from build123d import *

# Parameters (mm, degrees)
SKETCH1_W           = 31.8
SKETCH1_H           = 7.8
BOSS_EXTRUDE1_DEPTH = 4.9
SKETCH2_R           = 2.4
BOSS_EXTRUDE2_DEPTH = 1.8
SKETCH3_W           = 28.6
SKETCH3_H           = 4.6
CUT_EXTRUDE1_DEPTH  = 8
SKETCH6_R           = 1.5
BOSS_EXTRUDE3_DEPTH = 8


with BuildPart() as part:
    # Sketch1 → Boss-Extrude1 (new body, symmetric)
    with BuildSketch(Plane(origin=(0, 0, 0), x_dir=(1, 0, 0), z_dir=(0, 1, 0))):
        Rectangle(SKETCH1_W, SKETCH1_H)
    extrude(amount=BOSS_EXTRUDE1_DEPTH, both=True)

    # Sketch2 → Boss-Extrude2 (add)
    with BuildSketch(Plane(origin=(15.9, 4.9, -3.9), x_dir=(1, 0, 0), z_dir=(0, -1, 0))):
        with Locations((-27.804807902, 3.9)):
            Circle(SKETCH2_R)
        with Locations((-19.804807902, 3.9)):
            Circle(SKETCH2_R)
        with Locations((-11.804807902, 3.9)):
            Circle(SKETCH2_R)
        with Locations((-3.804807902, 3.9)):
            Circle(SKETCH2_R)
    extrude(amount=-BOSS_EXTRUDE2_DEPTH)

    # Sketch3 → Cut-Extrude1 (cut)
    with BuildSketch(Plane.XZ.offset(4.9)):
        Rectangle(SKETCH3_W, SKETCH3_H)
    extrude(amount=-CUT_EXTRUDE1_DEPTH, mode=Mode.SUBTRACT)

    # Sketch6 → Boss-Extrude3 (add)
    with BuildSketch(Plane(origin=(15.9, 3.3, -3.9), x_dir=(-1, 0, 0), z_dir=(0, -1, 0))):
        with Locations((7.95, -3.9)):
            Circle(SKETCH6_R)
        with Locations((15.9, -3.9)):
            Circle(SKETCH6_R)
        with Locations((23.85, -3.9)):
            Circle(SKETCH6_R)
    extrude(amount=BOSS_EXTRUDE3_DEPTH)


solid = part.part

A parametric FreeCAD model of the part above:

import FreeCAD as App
import Part
import Sketcher

doc = App.newDocument("Part")
body = doc.addObject("PartDesign::Body", "Body")

sketch1 = body.newObject("Sketcher::SketchObject", "Sketch")
sketch1.AttachmentSupport = (doc.getObject("XZ_Plane"), [""])
sketch1.MapMode = "FlatFace"
sketch1.addGeometry([
    Part.LineSegment(App.Vector(-16, -4, 0), App.Vector(-16, 4, 0)),
    Part.LineSegment(App.Vector(-16, 4, 0), App.Vector(16, 4, 0)),
    Part.LineSegment(App.Vector(16, 4, 0), App.Vector(16, -4, 0)),
    Part.LineSegment(App.Vector(16, -4, 0), App.Vector(-16, -4, 0)),
], False)
sketch1.addConstraint([
    Sketcher.Constraint("Coincident", 0, 2, 1, 1),
    Sketcher.Constraint("Coincident", 1, 2, 2, 1),
    Sketcher.Constraint("Coincident", 2, 2, 3, 1),
    Sketcher.Constraint("Coincident", 3, 2, 0, 1),
    Sketcher.Constraint("Vertical", 0),
    Sketcher.Constraint("Horizontal", 1),
    Sketcher.Constraint("Vertical", 2),
    Sketcher.Constraint("Horizontal", 3),
    Sketcher.Constraint("Symmetric", 0, 2, 2, 2, -1, 1),
    Sketcher.Constraint("DistanceX", 1, 1, 1, 2, 31.8),
    Sketcher.Constraint("DistanceY", 0, 1, 0, 2, 7.8),
])
pad1 = body.newObject("PartDesign::Pad", "Pad")
pad1.Profile = sketch1
pad1.Length = 9.8
pad1.Midplane = True

sketch2 = body.newObject("Sketcher::SketchObject", "Sketch001")
sketch2.AttachmentSupport = (doc.getObject("XZ_Plane"), [""])
sketch2.MapMode = "FlatFace"
sketch2.AttachmentOffset = App.Placement(App.Vector(0, 0, -4.9), App.Rotation())
sketch2.addGeometry([
    Part.Circle(App.Vector(-11.9, 0, 0), App.Vector(0, 0, 1), 2.4),
    Part.Circle(App.Vector(-3.9, 0, 0), App.Vector(0, 0, 1), 2.4),
    Part.Circle(App.Vector(4.1, 0, 0), App.Vector(0, 0, 1), 2.4),
    Part.Circle(App.Vector(12.1, 0, 0), App.Vector(0, 0, 1), 2.4),
], False)
sketch2.addConstraint([
    Sketcher.Constraint("Equal", 0, 1),
    Sketcher.Constraint("Equal", 1, 2),
    Sketcher.Constraint("Equal", 2, 3),
    Sketcher.Constraint("PointOnObject", 0, 3, -1),
    Sketcher.Constraint("PointOnObject", 1, 3, -1),
    Sketcher.Constraint("PointOnObject", 2, 3, -1),
    Sketcher.Constraint("PointOnObject", 3, 3, -1),
    Sketcher.Constraint("Diameter", 0, 4.8),
    Sketcher.Constraint("DistanceX", 0, 3, 1, 3, 8.0),
    Sketcher.Constraint("DistanceX", 1, 3, 2, 3, 8.0),
    Sketcher.Constraint("DistanceX", 2, 3, 3, 3, 8.0),
    Sketcher.Constraint("DistanceX", 0, 3, -1, 1, 11.904808),
])
pad2 = body.newObject("PartDesign::Pad", "Pad001")
pad2.Profile = sketch2
pad2.Length = 1.8
pad2.Reversed = True

sketch3 = body.newObject("Sketcher::SketchObject", "Sketch002")
sketch3.AttachmentSupport = (doc.getObject("XZ_Plane"), [""])
sketch3.MapMode = "FlatFace"
sketch3.AttachmentOffset = App.Placement(App.Vector(0, 0, 4.9), App.Rotation())
sketch3.addGeometry([
    Part.LineSegment(App.Vector(-14.3, 2.3, 0), App.Vector(-14.3, -2.3, 0)),
    Part.LineSegment(App.Vector(-14.3, -2.3, 0), App.Vector(14.3, -2.3, 0)),
    Part.LineSegment(App.Vector(14.3, -2.3, 0), App.Vector(14.3, 2.3, 0)),
    Part.LineSegment(App.Vector(14.3, 2.3, 0), App.Vector(-14.3, 2.3, 0)),
], False)
sketch3.addConstraint([
    Sketcher.Constraint("Coincident", 0, 2, 1, 1),
    Sketcher.Constraint("Coincident", 1, 2, 2, 1),
    Sketcher.Constraint("Coincident", 2, 2, 3, 1),
    Sketcher.Constraint("Coincident", 3, 2, 0, 1),
    Sketcher.Constraint("Vertical", 0),
    Sketcher.Constraint("Horizontal", 1),
    Sketcher.Constraint("Vertical", 2),
    Sketcher.Constraint("Horizontal", 3),
    Sketcher.Constraint("Symmetric", 0, 2, 2, 2, -1, 1),
    Sketcher.Constraint("DistanceX", 1, 1, 1, 2, 28.6),
    Sketcher.Constraint("DistanceY", 0, 2, 0, 1, 4.6),
])
pocket1 = body.newObject("PartDesign::Pocket", "Pocket")
pocket1.Profile = sketch3
pocket1.Length = 8

sketch4 = body.newObject("Sketcher::SketchObject", "Sketch003")
sketch4.AttachmentSupport = (doc.getObject("XZ_Plane"), [""])
sketch4.MapMode = "FlatFace"
sketch4.AttachmentOffset = App.Placement(App.Vector(0, 0, -3.3), App.Rotation())
sketch4.addGeometry([
    Part.Circle(App.Vector(8, 0, 0), App.Vector(0, 0, 1), 1.5),
    Part.Circle(App.Vector(0, 0, 0), App.Vector(0, 0, 1), 1.5),
    Part.Circle(App.Vector(-8, 0, 0), App.Vector(0, 0, 1), 1.5),
], False)
sketch4.addConstraint([
    Sketcher.Constraint("Coincident", 1, 3, -1, 1),
    Sketcher.Constraint("Equal", 0, 1),
    Sketcher.Constraint("Equal", 1, 2),
    Sketcher.Constraint("Symmetric", 0, 3, 2, 3, -1, 1),
    Sketcher.Constraint("PointOnObject", 0, 3, -1),
    Sketcher.Constraint("Diameter", 0, 3.0),
    Sketcher.Constraint("DistanceX", 2, 3, 0, 3, 15.9),
])
pad3 = body.newObject("PartDesign::Pad", "Pad002")
pad3.Profile = sketch4
pad3.Length = 8

doc.recompute()
